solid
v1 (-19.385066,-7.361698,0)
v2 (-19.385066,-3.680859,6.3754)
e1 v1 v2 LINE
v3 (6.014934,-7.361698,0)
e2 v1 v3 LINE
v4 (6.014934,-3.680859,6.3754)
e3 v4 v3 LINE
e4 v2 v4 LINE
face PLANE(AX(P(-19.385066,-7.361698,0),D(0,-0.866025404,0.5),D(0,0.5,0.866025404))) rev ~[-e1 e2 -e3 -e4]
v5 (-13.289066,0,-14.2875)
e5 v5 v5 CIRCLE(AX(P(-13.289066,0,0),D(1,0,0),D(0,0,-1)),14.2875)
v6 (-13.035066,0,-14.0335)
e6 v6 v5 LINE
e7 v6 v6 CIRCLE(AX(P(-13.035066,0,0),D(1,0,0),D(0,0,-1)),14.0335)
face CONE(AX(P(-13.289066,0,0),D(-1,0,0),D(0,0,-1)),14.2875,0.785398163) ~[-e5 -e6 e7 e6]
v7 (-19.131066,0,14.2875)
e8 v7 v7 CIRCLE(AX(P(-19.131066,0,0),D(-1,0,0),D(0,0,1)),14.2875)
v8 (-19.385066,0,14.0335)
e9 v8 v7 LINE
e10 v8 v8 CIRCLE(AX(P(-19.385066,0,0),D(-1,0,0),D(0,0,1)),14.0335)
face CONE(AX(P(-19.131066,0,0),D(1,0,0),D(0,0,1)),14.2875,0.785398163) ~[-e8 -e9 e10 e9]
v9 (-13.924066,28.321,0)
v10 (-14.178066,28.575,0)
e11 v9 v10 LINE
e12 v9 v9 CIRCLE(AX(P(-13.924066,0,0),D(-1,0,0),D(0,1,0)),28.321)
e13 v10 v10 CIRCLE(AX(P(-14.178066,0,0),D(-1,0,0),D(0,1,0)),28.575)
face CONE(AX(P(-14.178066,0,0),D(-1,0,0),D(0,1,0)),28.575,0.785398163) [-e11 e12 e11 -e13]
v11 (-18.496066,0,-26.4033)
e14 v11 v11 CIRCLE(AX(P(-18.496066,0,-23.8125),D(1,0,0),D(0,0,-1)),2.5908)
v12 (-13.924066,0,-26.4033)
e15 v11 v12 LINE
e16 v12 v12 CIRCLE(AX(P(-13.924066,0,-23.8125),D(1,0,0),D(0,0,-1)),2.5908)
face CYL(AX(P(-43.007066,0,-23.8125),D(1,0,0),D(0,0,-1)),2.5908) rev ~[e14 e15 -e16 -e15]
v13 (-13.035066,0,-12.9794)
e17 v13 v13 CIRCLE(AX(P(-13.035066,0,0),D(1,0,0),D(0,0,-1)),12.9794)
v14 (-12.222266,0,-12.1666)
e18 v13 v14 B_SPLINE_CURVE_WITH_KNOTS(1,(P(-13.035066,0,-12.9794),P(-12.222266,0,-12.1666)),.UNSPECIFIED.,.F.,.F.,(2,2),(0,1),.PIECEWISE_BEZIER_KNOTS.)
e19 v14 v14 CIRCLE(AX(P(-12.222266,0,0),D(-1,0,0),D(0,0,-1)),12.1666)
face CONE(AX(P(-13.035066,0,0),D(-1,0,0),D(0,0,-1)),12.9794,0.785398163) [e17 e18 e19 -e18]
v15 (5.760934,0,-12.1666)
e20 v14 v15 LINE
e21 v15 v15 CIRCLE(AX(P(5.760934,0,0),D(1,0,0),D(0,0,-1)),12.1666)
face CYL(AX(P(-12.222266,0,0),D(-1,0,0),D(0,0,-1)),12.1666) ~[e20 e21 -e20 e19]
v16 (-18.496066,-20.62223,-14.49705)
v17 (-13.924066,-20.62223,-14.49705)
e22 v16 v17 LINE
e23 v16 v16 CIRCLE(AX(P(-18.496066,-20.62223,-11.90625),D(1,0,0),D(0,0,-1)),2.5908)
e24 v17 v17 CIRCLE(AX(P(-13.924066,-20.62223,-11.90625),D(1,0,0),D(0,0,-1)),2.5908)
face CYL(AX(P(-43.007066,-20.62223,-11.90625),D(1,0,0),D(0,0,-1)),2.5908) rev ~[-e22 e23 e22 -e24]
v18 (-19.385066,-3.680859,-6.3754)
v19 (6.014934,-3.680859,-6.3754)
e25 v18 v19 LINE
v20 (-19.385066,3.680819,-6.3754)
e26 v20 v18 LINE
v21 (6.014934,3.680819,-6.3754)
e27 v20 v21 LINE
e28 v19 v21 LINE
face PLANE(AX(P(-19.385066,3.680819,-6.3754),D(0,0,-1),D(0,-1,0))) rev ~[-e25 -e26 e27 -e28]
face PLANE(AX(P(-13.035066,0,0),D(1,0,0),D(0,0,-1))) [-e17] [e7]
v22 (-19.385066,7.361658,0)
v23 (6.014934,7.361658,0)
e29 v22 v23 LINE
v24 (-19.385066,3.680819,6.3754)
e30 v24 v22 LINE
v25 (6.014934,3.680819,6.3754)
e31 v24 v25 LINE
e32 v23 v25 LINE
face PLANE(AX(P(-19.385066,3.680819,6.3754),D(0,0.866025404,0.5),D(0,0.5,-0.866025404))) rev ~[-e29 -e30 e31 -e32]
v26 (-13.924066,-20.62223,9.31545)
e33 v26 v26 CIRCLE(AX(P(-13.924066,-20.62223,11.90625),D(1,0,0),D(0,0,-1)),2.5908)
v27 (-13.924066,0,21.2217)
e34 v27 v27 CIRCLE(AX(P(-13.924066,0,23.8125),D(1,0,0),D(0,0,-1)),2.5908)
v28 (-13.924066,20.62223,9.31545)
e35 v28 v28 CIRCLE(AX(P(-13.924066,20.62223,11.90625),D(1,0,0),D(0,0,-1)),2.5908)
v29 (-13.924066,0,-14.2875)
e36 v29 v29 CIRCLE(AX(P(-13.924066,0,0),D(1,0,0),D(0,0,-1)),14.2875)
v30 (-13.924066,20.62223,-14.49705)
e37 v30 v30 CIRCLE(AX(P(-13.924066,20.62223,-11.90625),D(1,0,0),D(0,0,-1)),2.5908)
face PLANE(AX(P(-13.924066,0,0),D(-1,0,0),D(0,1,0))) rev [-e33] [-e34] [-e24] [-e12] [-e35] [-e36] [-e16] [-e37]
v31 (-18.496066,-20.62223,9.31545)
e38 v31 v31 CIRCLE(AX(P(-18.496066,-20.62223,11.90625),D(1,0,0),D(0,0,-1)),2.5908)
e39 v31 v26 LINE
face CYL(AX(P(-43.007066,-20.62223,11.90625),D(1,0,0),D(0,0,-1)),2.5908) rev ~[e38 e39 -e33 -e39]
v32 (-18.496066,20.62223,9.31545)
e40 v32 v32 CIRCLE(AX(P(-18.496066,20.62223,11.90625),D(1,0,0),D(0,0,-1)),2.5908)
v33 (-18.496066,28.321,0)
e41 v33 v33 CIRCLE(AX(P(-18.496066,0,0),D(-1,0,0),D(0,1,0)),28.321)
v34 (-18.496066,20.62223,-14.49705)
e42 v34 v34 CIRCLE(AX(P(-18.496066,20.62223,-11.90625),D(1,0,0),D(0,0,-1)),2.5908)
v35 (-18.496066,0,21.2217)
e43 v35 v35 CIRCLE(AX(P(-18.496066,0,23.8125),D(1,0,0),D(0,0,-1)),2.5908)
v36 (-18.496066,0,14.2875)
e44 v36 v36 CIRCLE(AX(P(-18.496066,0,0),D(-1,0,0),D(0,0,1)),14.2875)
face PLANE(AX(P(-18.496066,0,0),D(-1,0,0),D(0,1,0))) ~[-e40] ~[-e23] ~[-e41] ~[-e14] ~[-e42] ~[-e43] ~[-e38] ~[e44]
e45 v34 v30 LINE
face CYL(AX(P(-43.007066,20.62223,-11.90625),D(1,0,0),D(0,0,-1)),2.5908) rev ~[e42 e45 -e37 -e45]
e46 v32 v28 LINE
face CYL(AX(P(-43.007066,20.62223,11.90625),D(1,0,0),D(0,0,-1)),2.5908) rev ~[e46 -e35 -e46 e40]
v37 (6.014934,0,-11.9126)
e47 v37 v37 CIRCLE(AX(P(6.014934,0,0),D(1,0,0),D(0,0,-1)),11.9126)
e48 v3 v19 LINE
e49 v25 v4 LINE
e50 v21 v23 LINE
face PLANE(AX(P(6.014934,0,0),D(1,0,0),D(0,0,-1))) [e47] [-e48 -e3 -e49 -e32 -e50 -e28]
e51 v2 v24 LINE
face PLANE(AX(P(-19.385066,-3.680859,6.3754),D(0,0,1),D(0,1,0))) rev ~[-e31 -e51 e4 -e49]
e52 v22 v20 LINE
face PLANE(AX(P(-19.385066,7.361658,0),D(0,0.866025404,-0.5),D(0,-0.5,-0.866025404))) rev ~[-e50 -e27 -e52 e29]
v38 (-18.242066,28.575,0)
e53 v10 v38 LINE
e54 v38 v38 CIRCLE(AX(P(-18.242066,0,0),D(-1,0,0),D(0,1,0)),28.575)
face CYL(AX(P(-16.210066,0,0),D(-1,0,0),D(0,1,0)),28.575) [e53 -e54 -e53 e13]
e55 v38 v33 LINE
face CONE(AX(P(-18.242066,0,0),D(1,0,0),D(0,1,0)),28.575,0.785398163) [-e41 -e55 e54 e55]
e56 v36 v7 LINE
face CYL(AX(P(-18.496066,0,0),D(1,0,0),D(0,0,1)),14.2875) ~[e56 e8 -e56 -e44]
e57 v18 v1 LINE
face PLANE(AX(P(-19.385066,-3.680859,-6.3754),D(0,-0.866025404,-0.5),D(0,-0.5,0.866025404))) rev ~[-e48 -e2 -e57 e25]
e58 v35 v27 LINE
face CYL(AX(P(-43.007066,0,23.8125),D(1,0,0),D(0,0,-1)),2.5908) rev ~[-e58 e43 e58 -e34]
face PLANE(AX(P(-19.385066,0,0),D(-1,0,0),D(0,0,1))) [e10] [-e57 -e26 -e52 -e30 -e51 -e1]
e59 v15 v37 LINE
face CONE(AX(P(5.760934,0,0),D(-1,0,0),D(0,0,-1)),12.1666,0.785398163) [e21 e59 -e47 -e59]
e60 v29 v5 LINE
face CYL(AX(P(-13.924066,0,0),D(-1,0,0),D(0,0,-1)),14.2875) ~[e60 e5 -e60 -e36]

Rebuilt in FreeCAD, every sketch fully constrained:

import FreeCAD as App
import Part
import Sketcher
from FreeCAD import Vector
Q = App.Units.Quantity


def edges_at(feature, points):
    """Names of the edges that pass closest to the given points."""
    edges = feature.Shape.Edges
    near = lambda p: min(range(len(edges)), key=lambda i: edges[i].distToShape(Part.Vertex(*p))[0])
    return sorted({f"Edge{near(p) + 1}" for p in points})

doc = App.newDocument("Part")
params = doc.addObject("Spreadsheet::Sheet", "Params")
for row, (alias, value) in enumerate([
    ("sketch1_width", "0.18 in"),
    ("sketch1_height", "1.125 in"),
    ("revolution_angle", "360 deg"),
    ("sketch2_diameter", "1.125 in"),
    ("pad1_length", "0.035 in"),
    ("sketch3_diameter", "1.022 in"),
    ("pad2_length", "0.032 in"),
    ("pad2_taper", "-45 deg"),
    ("sketch4_diameter", "0.958 in"),
    ("pad3_length", "0.718 in"),
    ("sketch5_diameter", "1.125 in"),
    ("pad4_length", "0.035 in"),
    ("sketch7_diameter", "0.204 in"),
    ("hole_diameter", "0.204 in"),
    ("hole_depth", "0.965 in"),
    ("chamfer_size", "0.01 in"),
], start=1):
    params.set(f"A{row}", alias)
    params.set(f"B{row}", "=" + value)
    params.setAlias(f"B{row}", alias)

body = doc.addObject("PartDesign::Body", "Body")

sketch1 = body.newObject("Sketcher::SketchObject", "Sketch")
sketch1.AttachmentSupport = (doc.getObject("XY_Plane"), [""])
sketch1.MapMode = "FlatFace"
sketch1.addGeometry([
    Part.LineSegment(Vector(-13.9, 28.6, 0), Vector(-13.9, 0, 0)),
    Part.LineSegment(Vector(-13.9, 0, 0), Vector(-18.5, 0, 0)),
    Part.LineSegment(Vector(-18.5, 0, 0), Vector(-18.5, 28.6, 0)),
    Part.LineSegment(Vector(-18.5, 28.6, 0), Vector(-13.9, 28.6, 0)),
], False)
sketch1.addConstraint([
    Sketcher.Constraint("Coincident", 0, 2, 1, 1),
    Sketcher.Constraint("Coincident", 1, 2, 2, 1),
    Sketcher.Constraint("Coincident", 2, 2, 3, 1),
    Sketcher.Constraint("Coincident", 3, 2, 0, 1),
    Sketcher.Constraint("Vertical", 0),
    Sketcher.Constraint("Horizontal", 1),
    Sketcher.Constraint("Vertical", 2),
    Sketcher.Constraint("Horizontal", 3),
    Sketcher.Constraint("PointOnObject", 0, 2, -1),
    Sketcher.Constraint("DistanceX", 1, 2, 1, 1, Q("0.18 in")),
    Sketcher.Constraint("DistanceY", 0, 2, 0, 1, Q("1.125 in")),
    Sketcher.Constraint("DistanceX", 0, 2, -1, 1, 13.924066),
])
sketch1.setExpression("Constraints[9]", "Params.sketch1_width")
sketch1.setExpression("Constraints[10]", "Params.sketch1_height")
revolution = body.newObject("PartDesign::Revolution", "Revolution")
revolution.Profile = sketch1
revolution.ReferenceAxis = (sketch1, ["H_Axis"])
revolution.setExpression("Angle", "Params.revolution_angle")

sketch2 = body.newObject("Sketcher::SketchObject", "Sketch001")
sketch2.AttachmentSupport = (doc.getObject("YZ_Plane"), [""])
sketch2.MapMode = "FlatFace"
sketch2.AttachmentOffset = App.Placement(Vector(0, 0, -13.924066), App.Rotation())
sketch2.addGeometry(Part.Circle(Vector(0, 0, 0), Vector(0, 0, 1), 14), False)
sketch2.addConstraint([
    Sketcher.Constraint("Coincident", 0, 3, -1, 1),
    Sketcher.Constraint("Diameter", 0, Q("1.125 in")),
])
sketch2.setExpression("Constraints[1]", "Params.sketch2_diameter")
pad1 = body.newObject("PartDesign::Pad", "Pad")
pad1.Profile = sketch2
pad1.setExpression("Length", "Params.pad1_length")

sketch3 = body.newObject("Sketcher::SketchObject", "Sketch002")
sketch3.AttachmentSupport = (doc.getObject("YZ_Plane"), [""])
sketch3.MapMode = "FlatFace"
sketch3.AttachmentOffset = App.Placement(Vector(0, 0, -13.035066), App.Rotation())
sketch3.addGeometry(Part.Circle(Vector(0, 0, 0), Vector(0, 0, 1), 13), False)
sketch3.addConstraint([
    Sketcher.Constraint("Coincident", 0, 3, -1, 1),
    Sketcher.Constraint("Diameter", 0, Q("1.022 in")),
])
sketch3.setExpression("Constraints[1]", "Params.sketch3_diameter")
pad2 = body.newObject("PartDesign::Pad", "Pad001")
pad2.Profile = sketch3
pad2.setExpression("Length", "Params.pad2_length")
pad2.setExpression("TaperAngle", "Params.pad2_taper")

sketch4 = body.newObject("Sketcher::SketchObject", "Sketch003")
sketch4.AttachmentSupport = (doc.getObject("YZ_Plane"), [""])
sketch4.MapMode = "FlatFace"
sketch4.AttachmentOffset = App.Placement(Vector(0, 0, -12.222266), App.Rotation())
sketch4.addGeometry(Part.Circle(Vector(0, 0, 0), Vector(0, 0, 1), 12), False)
sketch4.addConstraint([
    Sketcher.Constraint("Coincident", 0, 3, -1, 1),
    Sketcher.Constraint("Diameter", 0, Q("0.958 in")),
])
sketch4.setExpression("Constraints[1]", "Params.sketch4_diameter")
pad3 = body.newObject("PartDesign::Pad", "Pad002")
pad3.Profile = sketch4
pad3.setExpression("Length", "Params.pad3_length")

sketch5 = body.newObject("Sketcher::SketchObject", "Sketch004")
sketch5.AttachmentSupport = (doc.getObject("YZ_Plane"), [""])
sketch5.MapMode = "FlatFace"
sketch5.AttachmentOffset = App.Placement(Vector(0, 0, -18.496066), App.Rotation())
sketch5.addGeometry(Part.Circle(Vector(0, 0, 0), Vector(0, 0, 1), 14), False)
sketch5.addConstraint([
    Sketcher.Constraint("Coincident", 0, 3, -1, 1),
    Sketcher.Constraint("Diameter", 0, Q("1.125 in")),
])
sketch5.setExpression("Constraints[1]", "Params.sketch5_diameter")
pad4 = body.newObject("PartDesign::Pad", "Pad003")
pad4.Profile = sketch5
pad4.setExpression("Length", "Params.pad4_length")
pad4.Reversed = True

sketch6 = body.newObject("Sketcher::SketchObject", "Sketch005")
sketch6.AttachmentSupport = (doc.getObject("YZ_Plane"), [""])
sketch6.MapMode = "FlatFace"
sketch6.AttachmentOffset = App.Placement(Vector(0, 0, -19.385066), App.Rotation())
sketch6.addGeometry([
    Part.LineSegment(Vector(7, 0, 0), Vector(4, -6, 0)),
    Part.LineSegment(Vector(4, -6, 0), Vector(-4, -6, 0)),
    Part.LineSegment(Vector(-4, -6, 0), Vector(-7, 0, 0)),
    Part.LineSegment(Vector(-7, 0, 0), Vector(-4, 6, 0)),
    Part.LineSegment(Vector(-4, 6, 0), Vector(4, 6, 0)),
    Part.LineSegment(Vector(4, 6, 0), Vector(7, 0, 0)),
], False)
sketch6.addConstraint([
    Sketcher.Constraint("Coincident", 0, 2, 1, 1),
    Sketcher.Constraint("Coincident", 1, 2, 2, 1),
    Sketcher.Constraint("Coincident", 2, 2, 3, 1),
    Sketcher.Constraint("Coincident", 3, 2, 4, 1),
    Sketcher.Constraint("Coincident", 4, 2, 5, 1),
    Sketcher.Constraint("Coincident", 5, 2, 0, 1),
    Sketcher.Constraint("Horizontal", 1),
    Sketcher.Constraint("Horizontal", 4),
    Sketcher.Constraint("Symmetric", 1, 2, 3, 2, -1),
    Sketcher.Constraint("PointOnObject", 2, 2, -1),
    Sketcher.Constraint("PointOnObject", 5, 2, -1),
    Sketcher.Constraint("Parallel", 0, 3),
    Sketcher.Constraint("Parallel", 2, 5),
    Sketcher.Constraint("Angle", 0, Q("-120 deg")),
    Sketcher.Constraint("DistanceY", 0, 2, -1, 1, Q("0.251 in")),
    Sketcher.Constraint("DistanceX", 1, 2, 1, 1, 7.361678),
    Sketcher.Constraint("DistanceX", -1, 1, 0, 2, 3.680819),
])
pocket1 = body.newObject("PartDesign::Pocket", "Pocket")
pocket1.Profile = sketch6
pocket1.Type = "ThroughAll"
pocket1.Reversed = True

sketch7 = body.newObject("Sketcher::SketchObject", "Sketch006")
sketch7.AttachmentSupport = (doc.getObject("YZ_Plane"), [""])
sketch7.MapMode = "FlatFace"
sketch7.AttachmentOffset = App.Placement(Vector(0, 0, -18.496066), App.Rotation())
sketch7.addGeometry([
    Part.Circle(Vector(20.6, 11.9, 0), Vector(0, 0, 1), 2.6),
    Part.Circle(Vector(0, -23.8, 0), Vector(0, 0, 1), 2.6),
    Part.Circle(Vector(-20.6, 11.9, 0), Vector(0, 0, 1), 2.6),
    Part.Circle(Vector(-20.6, -11.9, 0), Vector(0, 0, 1), 2.6),
    Part.Circle(Vector(20.6, -11.9, 0), Vector(0, 0, 1), 2.6),
    Part.Circle(Vector(0, 23.8, 0), Vector(0, 0, 1), 2.6),
], False)
sketch7.addConstraint([
    Sketcher.Constraint("Equal", 0, 1),
    Sketcher.Constraint("Equal", 1, 2),
    Sketcher.Constraint("Equal", 2, 3),
    Sketcher.Constraint("Equal", 3, 4),
    Sketcher.Constraint("Equal", 4, 5),
    Sketcher.Constraint("Symmetric", 0, 3, 3, 3, -1, 1),
    Sketcher.Constraint("Symmetric", 2, 3, 4, 3, -1, 1),
    Sketcher.Constraint("Symmetric", 1, 3, 5, 3, -1, 1),
    Sketcher.Constraint("Symmetric", 0, 3, 2, 3, -2),
    Sketcher.Constraint("PointOnObject", 1, 3, -2),
    Sketcher.Constraint("Diameter", 0, Q("0.204 in")),
    Sketcher.Constraint("DistanceY", -1, 1, 0, 3, Q("0.46875 in")),
    Sketcher.Constraint("DistanceY", 1, 3, -1, 1, Q("0.9375 in")),
    Sketcher.Constraint("DistanceX", -1, 1, 0, 3, 20.62223),
])
sketch7.setExpression("Constraints[10]", "Params.sketch7_diameter")
doc.recompute()
hole = body.newObject("PartDesign::Hole", "Hole")
hole.Profile = sketch7
hole.ThreadType = "None"
hole.setExpression("Diameter", "Params.hole_diameter")
hole.DepthType = "Dimension"
hole.setExpression("Depth", "Params.hole_depth")
hole.DrillPoint = "Flat"
hole.Reversed = True
doc.recompute()

chamfer = body.newObject("PartDesign::Chamfer", "Chamfer")
chamfer.Base = (hole, edges_at(hole, [
    (6.015, 0, 12.167),
    (-19.385, 0, -14.287),
    (-18.496, -28.575, 0),
    (-13.924, -28.575, 0),
    (-13.035, 0, 14.287),
]))
chamfer.setExpression("Size", "Params.chamfer_size")

doc.recompute()
